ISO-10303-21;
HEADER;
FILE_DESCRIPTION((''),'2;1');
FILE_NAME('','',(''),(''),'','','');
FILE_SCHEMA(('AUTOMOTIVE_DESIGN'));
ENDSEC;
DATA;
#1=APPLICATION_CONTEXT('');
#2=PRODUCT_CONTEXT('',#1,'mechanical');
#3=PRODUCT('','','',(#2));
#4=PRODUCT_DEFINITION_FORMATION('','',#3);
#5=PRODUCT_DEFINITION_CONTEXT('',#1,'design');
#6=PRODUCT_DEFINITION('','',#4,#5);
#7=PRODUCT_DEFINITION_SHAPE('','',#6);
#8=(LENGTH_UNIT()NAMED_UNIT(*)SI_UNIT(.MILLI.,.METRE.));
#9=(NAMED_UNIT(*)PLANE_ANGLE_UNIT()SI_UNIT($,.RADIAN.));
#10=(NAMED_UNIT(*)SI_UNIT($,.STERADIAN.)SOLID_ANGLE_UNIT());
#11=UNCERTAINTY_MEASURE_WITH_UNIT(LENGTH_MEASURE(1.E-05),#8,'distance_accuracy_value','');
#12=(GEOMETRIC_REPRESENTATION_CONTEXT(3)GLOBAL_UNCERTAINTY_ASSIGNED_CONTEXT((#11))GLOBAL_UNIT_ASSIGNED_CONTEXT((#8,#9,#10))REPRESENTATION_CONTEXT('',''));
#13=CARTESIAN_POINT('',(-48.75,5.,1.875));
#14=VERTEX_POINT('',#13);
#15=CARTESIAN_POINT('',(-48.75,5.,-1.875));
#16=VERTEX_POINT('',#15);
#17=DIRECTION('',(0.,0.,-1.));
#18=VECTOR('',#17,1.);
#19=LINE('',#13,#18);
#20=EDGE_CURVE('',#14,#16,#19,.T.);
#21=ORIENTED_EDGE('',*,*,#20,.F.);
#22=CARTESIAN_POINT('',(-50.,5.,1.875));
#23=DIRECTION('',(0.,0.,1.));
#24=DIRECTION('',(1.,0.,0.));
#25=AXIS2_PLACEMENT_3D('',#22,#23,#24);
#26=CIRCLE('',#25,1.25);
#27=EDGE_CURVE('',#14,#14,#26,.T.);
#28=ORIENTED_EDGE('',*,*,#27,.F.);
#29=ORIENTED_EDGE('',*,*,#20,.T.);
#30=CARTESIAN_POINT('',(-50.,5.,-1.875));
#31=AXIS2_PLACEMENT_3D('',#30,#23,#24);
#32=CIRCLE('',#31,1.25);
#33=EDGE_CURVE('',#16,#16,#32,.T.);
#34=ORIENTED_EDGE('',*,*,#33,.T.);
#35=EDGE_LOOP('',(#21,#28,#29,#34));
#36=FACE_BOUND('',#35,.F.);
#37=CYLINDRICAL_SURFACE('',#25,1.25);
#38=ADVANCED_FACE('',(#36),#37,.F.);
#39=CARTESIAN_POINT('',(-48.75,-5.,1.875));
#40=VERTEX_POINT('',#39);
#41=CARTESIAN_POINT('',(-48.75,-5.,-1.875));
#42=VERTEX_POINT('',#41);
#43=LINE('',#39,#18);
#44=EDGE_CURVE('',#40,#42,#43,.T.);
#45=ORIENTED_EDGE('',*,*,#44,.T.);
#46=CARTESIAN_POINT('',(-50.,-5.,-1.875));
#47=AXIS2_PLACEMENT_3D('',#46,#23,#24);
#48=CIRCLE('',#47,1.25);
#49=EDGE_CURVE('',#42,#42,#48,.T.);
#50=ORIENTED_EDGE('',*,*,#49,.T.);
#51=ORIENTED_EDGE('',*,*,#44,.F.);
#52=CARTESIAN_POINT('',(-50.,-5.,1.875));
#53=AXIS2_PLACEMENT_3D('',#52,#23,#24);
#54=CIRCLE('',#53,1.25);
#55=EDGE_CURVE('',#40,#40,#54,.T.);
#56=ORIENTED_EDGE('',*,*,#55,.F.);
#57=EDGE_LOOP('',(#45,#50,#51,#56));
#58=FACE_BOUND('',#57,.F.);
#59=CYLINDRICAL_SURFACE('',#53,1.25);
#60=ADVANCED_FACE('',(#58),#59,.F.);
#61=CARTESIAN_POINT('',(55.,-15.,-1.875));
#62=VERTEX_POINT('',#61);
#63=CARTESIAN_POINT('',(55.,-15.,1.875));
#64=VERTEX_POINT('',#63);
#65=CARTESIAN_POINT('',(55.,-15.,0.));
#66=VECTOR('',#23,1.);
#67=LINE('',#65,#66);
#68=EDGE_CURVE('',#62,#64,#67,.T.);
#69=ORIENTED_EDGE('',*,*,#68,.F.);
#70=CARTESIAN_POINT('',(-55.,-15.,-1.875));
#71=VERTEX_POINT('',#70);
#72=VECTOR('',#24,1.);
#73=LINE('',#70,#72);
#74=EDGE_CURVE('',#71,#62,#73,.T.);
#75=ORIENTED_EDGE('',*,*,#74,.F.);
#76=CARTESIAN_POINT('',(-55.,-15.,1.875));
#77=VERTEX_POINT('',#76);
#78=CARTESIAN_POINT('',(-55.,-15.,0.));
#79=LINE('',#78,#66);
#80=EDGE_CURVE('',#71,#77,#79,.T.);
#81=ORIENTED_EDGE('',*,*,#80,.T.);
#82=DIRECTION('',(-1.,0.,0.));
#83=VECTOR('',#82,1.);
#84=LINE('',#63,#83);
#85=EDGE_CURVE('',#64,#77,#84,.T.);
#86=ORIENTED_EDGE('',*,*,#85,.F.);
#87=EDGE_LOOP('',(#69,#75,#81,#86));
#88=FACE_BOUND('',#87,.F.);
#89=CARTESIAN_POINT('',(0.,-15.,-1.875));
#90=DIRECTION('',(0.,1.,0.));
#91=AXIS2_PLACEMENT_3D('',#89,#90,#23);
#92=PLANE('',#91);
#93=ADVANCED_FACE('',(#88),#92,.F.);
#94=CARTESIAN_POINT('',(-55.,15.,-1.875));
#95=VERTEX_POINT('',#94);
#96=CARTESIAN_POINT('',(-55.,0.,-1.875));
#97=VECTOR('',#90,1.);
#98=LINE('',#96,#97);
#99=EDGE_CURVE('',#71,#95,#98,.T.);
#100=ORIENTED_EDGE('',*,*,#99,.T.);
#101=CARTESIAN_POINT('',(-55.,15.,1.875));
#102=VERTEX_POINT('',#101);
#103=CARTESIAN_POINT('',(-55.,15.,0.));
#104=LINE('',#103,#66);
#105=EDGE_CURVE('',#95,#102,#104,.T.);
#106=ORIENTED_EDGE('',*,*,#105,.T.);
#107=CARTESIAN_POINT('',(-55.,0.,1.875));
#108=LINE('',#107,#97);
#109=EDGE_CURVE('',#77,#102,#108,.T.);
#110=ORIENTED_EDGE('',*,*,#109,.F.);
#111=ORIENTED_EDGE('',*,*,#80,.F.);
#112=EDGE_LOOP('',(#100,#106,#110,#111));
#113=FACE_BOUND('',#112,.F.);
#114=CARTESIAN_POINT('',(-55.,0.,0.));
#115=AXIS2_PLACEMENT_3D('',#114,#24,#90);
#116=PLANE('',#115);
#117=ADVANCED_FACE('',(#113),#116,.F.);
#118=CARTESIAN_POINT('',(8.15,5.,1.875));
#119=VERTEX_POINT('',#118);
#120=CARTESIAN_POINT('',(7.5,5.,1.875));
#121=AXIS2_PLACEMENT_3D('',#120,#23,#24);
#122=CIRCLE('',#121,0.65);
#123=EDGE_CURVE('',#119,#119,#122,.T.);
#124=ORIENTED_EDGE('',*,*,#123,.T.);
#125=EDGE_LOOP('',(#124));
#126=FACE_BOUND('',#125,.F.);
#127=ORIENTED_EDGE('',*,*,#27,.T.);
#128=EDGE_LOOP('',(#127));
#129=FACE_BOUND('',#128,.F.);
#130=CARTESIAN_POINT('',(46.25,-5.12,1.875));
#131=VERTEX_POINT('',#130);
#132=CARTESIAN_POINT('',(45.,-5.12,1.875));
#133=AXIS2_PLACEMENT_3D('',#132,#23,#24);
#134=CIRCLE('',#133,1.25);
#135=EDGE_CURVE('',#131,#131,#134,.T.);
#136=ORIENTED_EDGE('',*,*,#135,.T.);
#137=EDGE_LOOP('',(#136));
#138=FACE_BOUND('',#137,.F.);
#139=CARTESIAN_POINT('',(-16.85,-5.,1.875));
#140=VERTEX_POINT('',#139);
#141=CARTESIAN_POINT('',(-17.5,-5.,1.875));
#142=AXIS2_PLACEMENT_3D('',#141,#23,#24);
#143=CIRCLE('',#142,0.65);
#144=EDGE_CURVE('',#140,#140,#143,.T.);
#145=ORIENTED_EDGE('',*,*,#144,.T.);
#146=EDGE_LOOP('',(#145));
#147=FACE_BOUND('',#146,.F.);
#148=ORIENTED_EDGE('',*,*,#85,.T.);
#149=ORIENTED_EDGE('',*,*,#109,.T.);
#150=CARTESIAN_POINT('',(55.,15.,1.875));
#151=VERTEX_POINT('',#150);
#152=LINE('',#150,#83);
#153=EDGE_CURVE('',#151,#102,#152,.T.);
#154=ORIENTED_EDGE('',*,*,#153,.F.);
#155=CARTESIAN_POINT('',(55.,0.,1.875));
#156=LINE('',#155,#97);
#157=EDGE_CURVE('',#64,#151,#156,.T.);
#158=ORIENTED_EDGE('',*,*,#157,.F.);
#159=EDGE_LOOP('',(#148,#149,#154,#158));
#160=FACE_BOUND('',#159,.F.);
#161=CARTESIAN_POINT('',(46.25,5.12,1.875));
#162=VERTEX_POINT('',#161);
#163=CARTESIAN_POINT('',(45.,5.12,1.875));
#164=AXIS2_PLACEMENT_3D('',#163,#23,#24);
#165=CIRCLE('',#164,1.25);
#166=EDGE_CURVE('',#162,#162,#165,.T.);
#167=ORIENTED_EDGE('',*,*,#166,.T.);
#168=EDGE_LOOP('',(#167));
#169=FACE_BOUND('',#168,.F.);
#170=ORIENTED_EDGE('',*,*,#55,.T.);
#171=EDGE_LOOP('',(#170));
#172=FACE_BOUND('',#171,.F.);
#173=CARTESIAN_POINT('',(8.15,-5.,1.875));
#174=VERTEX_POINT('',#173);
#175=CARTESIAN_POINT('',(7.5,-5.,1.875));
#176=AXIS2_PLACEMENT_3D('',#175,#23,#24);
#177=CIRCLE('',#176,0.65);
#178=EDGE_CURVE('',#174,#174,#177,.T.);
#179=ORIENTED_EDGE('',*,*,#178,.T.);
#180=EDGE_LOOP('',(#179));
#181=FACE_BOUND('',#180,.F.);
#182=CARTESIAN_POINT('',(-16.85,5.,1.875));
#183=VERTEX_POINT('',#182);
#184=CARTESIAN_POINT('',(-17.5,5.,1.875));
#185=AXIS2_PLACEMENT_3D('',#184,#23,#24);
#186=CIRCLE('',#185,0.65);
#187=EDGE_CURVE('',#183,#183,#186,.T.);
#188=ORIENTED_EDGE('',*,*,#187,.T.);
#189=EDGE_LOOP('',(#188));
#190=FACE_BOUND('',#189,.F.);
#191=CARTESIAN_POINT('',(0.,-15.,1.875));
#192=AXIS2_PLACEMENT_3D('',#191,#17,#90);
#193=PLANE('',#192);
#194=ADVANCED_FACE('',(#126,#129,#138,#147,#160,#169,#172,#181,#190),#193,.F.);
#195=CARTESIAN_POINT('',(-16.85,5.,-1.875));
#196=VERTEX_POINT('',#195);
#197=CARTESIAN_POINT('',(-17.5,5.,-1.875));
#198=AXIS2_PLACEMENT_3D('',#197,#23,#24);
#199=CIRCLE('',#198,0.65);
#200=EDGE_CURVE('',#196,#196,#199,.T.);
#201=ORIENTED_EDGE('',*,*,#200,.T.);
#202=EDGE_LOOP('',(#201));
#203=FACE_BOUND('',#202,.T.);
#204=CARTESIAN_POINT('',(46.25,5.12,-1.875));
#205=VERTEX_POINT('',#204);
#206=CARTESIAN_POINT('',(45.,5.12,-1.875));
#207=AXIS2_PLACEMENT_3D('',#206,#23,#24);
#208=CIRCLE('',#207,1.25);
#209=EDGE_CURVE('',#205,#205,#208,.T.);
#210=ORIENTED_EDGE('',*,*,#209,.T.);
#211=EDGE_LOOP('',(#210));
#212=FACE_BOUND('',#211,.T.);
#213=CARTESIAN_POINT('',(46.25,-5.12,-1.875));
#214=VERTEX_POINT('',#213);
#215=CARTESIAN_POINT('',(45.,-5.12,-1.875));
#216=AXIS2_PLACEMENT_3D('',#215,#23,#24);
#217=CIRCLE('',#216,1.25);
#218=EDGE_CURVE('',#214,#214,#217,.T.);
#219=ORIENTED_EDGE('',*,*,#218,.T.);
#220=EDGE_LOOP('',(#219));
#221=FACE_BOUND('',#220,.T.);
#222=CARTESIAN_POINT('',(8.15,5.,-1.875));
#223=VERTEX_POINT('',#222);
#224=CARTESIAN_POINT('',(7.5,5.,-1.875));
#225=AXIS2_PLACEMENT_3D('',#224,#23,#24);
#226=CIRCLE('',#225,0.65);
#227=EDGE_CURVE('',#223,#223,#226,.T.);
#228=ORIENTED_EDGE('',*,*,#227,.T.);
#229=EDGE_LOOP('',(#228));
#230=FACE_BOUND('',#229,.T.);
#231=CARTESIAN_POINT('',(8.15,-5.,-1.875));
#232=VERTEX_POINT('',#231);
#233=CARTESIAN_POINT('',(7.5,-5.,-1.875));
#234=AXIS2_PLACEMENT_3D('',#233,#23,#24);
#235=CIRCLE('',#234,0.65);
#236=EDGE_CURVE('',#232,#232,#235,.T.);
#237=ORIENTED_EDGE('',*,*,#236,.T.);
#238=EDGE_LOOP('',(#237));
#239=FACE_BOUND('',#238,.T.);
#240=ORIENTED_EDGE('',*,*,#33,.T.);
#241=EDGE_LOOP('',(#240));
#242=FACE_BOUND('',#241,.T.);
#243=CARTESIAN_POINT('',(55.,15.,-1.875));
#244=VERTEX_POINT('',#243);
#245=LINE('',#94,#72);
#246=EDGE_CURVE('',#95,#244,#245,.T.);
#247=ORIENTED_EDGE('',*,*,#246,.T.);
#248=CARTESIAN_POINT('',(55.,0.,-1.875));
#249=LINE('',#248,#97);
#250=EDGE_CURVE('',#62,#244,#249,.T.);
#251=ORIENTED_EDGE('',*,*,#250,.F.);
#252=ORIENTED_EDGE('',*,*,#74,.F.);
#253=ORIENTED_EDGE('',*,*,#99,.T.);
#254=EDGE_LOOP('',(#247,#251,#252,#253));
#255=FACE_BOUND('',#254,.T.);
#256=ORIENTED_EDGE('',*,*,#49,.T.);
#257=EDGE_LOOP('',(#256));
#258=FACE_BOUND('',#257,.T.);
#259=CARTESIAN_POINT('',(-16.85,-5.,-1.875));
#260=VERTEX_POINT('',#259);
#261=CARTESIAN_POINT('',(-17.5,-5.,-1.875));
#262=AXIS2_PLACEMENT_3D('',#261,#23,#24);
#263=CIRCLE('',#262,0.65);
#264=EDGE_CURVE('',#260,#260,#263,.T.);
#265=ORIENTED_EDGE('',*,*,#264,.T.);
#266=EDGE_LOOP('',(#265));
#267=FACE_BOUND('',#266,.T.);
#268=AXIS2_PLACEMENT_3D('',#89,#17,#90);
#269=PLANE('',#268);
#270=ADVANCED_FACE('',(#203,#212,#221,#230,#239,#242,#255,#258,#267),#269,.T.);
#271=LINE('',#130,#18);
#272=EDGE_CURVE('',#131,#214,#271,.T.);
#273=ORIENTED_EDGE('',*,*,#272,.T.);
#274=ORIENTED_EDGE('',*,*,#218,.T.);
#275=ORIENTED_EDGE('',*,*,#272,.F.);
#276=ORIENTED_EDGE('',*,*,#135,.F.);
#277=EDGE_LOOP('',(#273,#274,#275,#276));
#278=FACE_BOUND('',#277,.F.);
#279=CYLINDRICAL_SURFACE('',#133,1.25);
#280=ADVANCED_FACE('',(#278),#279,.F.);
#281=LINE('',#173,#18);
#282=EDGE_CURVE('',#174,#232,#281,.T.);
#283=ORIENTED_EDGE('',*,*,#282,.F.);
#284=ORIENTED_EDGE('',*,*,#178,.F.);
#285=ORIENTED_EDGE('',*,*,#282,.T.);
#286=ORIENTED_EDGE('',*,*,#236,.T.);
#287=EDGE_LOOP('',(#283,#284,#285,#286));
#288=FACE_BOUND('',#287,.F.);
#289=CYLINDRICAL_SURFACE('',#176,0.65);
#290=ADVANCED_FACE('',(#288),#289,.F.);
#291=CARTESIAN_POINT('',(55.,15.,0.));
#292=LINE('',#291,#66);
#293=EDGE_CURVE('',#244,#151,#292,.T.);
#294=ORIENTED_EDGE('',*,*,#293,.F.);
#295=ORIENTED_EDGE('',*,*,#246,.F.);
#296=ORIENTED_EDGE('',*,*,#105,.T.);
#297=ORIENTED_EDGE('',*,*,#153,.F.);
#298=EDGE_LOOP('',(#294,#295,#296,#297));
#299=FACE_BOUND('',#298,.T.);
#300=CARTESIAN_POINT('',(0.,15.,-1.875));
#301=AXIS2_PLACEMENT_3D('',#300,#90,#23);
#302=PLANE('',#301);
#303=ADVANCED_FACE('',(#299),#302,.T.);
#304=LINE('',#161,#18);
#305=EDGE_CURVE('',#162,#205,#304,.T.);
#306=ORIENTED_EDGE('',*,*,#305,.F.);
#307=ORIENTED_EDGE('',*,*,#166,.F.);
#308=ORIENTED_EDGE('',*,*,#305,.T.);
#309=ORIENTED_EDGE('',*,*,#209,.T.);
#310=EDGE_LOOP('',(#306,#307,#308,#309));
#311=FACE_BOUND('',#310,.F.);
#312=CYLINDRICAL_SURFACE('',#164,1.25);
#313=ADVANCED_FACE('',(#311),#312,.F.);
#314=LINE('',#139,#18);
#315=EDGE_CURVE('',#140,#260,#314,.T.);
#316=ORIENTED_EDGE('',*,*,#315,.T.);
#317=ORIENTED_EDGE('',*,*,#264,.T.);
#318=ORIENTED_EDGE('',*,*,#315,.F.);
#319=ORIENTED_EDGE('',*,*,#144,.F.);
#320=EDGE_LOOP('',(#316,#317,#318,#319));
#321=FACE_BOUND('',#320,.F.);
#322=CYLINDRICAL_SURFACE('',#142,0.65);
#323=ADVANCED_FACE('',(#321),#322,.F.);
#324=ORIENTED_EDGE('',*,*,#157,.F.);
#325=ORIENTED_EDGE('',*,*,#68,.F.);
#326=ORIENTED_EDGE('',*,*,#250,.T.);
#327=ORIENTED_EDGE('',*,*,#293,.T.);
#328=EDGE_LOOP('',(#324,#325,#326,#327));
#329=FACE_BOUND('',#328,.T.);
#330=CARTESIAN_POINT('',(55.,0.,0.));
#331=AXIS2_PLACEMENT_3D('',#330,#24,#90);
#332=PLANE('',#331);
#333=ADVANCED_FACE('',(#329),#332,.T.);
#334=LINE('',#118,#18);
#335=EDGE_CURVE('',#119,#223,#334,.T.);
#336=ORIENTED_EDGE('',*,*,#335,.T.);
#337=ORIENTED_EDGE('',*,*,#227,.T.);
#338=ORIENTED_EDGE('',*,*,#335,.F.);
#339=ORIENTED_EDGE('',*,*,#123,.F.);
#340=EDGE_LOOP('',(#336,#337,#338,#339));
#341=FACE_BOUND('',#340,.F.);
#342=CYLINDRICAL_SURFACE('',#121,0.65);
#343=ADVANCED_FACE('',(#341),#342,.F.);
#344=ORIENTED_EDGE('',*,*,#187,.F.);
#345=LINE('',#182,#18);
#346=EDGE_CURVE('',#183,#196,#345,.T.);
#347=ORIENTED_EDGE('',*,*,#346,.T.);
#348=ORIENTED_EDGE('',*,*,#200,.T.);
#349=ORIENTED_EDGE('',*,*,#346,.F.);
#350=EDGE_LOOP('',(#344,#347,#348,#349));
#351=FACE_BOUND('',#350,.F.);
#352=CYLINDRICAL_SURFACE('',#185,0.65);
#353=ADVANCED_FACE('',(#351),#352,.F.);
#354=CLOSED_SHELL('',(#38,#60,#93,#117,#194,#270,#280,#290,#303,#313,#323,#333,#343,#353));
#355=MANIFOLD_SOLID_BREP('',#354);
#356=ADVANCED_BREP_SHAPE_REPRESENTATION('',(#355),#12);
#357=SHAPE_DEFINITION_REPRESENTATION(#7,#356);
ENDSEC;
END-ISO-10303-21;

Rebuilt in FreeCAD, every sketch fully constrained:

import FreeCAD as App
import Part
import Sketcher
from FreeCAD import Vector


def add_polygon(sketch, points):
    """Adds a closed chain of lines whose ends are joined by coincident constraints."""
    first, n = sketch.GeometryCount, len(points)
    for a, b in zip(points, points[1:] + points[:1]):
        sketch.addGeometry(Part.LineSegment(App.Vector(*a, 0), App.Vector(*b, 0)), False)
    for i in range(n):
        sketch.addConstraint(Sketcher.Constraint("Coincident", first + i, 2, first + (i + 1) % n, 1))

doc = App.newDocument("Part")
body = doc.addObject("PartDesign::Body", "Body")

sketch1 = body.newObject("Sketcher::SketchObject", "Sketch")
sketch1.AttachmentSupport = (doc.getObject("YZ_Plane"), [""])
sketch1.MapMode = "FlatFace"
add_polygon(sketch1, [(-15, 1.9), (-15, -1.9), (15, -1.9), (15, 1.9)])
sketch1.addConstraint([
    Sketcher.Constraint("Vertical", 0),
    Sketcher.Constraint("Horizontal", 1),
    Sketcher.Constraint("Vertical", 2),
    Sketcher.Constraint("Horizontal", 3),
    Sketcher.Constraint("Symmetric", 0, 2, 2, 2, -1, 1),
    Sketcher.Constraint("DistanceX", 1, 1, 1, 2, 30.0),
    Sketcher.Constraint("DistanceY", 0, 2, 0, 1, 3.75),
])
pad1 = body.newObject("PartDesign::Pad", "Pad")
pad1.Profile = sketch1
pad1.Length = 110
pad1.Midplane = True

sketch2 = body.newObject("Sketcher::SketchObject", "Sketch001")
sketch2.AttachmentSupport = (doc.getObject("XY_Plane"), [""])
sketch2.MapMode = "FlatFace"
sketch2.AttachmentOffset = App.Placement(Vector(0, 0, 1.875), App.Rotation())
sketch2.addGeometry([
    Part.Circle(Vector(-50, 5, 0), Vector(0, 0, 1), 1.2),
    Part.Circle(Vector(45, -5.1, 0), Vector(0, 0, 1), 1.2),
    Part.Circle(Vector(45, 5.1, 0), Vector(0, 0, 1), 1.2),
    Part.Circle(Vector(-50, -5, 0), Vector(0, 0, 1), 1.2),
], False)
sketch2.addConstraint([
    Sketcher.Constraint("Equal", 0, 1),
    Sketcher.Constraint("Equal", 1, 2),
    Sketcher.Constraint("Equal", 2, 3),
    Sketcher.Constraint("Symmetric", 1, 3, 2, 3, -1),
    Sketcher.Constraint("Symmetric", 0, 3, 3, 3, -1),
    Sketcher.Constraint("Diameter", 0, 2.5),
    Sketcher.Constraint("DistanceX", 0, 3, -1, 1, 50.0),
    Sketcher.Constraint("DistanceY", -1, 1, 0, 3, 5.0),
    Sketcher.Constraint("DistanceX", -1, 1, 1, 3, 45.0),
    Sketcher.Constraint("DistanceY", 1, 3, -1, 1, 5.12),
])
pocket1 = body.newObject("PartDesign::Pocket", "Pocket")
pocket1.Profile = sketch2
pocket1.Type = "ThroughAll"

sketch3 = body.newObject("Sketcher::SketchObject", "Sketch002")
sketch3.AttachmentSupport = (doc.getObject("XY_Plane"), [""])
sketch3.MapMode = "FlatFace"
sketch3.AttachmentOffset = App.Placement(Vector(0, 0, 1.875), App.Rotation())
sketch3.addGeometry([
    Part.Circle(Vector(-17.5, 5, 0), Vector(0, 0, 1), 0.7),
    Part.Circle(Vector(-17.5, -5, 0), Vector(0, 0, 1), 0.7),
    Part.Circle(Vector(7.5, 5, 0), Vector(0, 0, 1), 0.7),
    Part.Circle(Vector(7.5, -5, 0), Vector(0, 0, 1), 0.7),
], False)
sketch3.addConstraint([
    Sketcher.Constraint("Equal", 0, 1),
    Sketcher.Constraint("Equal", 1, 2),
    Sketcher.Constraint("Equal", 2, 3),
    Sketcher.Constraint("Symmetric", 0, 3, 1, 3, -1),
    Sketcher.Constraint("Symmetric", 2, 3, 3, 3, -1),
    Sketcher.Constraint("Horizontal", 0, 3, 2, 3),
    Sketcher.Constraint("Diameter", 0, 1.3),
    Sketcher.Constraint("DistanceY", -1, 1, 0, 3, 5.0),
    Sketcher.Constraint("DistanceX", 0, 3, 2, 3, 25.0),
    Sketcher.Constraint("DistanceX", 0, 3, -1, 1, 17.5),
])
pocket2 = body.newObject("PartDesign::Pocket", "Pocket001")
pocket2.Profile = sketch3
pocket2.Type = "ThroughAll"

doc.recompute()
